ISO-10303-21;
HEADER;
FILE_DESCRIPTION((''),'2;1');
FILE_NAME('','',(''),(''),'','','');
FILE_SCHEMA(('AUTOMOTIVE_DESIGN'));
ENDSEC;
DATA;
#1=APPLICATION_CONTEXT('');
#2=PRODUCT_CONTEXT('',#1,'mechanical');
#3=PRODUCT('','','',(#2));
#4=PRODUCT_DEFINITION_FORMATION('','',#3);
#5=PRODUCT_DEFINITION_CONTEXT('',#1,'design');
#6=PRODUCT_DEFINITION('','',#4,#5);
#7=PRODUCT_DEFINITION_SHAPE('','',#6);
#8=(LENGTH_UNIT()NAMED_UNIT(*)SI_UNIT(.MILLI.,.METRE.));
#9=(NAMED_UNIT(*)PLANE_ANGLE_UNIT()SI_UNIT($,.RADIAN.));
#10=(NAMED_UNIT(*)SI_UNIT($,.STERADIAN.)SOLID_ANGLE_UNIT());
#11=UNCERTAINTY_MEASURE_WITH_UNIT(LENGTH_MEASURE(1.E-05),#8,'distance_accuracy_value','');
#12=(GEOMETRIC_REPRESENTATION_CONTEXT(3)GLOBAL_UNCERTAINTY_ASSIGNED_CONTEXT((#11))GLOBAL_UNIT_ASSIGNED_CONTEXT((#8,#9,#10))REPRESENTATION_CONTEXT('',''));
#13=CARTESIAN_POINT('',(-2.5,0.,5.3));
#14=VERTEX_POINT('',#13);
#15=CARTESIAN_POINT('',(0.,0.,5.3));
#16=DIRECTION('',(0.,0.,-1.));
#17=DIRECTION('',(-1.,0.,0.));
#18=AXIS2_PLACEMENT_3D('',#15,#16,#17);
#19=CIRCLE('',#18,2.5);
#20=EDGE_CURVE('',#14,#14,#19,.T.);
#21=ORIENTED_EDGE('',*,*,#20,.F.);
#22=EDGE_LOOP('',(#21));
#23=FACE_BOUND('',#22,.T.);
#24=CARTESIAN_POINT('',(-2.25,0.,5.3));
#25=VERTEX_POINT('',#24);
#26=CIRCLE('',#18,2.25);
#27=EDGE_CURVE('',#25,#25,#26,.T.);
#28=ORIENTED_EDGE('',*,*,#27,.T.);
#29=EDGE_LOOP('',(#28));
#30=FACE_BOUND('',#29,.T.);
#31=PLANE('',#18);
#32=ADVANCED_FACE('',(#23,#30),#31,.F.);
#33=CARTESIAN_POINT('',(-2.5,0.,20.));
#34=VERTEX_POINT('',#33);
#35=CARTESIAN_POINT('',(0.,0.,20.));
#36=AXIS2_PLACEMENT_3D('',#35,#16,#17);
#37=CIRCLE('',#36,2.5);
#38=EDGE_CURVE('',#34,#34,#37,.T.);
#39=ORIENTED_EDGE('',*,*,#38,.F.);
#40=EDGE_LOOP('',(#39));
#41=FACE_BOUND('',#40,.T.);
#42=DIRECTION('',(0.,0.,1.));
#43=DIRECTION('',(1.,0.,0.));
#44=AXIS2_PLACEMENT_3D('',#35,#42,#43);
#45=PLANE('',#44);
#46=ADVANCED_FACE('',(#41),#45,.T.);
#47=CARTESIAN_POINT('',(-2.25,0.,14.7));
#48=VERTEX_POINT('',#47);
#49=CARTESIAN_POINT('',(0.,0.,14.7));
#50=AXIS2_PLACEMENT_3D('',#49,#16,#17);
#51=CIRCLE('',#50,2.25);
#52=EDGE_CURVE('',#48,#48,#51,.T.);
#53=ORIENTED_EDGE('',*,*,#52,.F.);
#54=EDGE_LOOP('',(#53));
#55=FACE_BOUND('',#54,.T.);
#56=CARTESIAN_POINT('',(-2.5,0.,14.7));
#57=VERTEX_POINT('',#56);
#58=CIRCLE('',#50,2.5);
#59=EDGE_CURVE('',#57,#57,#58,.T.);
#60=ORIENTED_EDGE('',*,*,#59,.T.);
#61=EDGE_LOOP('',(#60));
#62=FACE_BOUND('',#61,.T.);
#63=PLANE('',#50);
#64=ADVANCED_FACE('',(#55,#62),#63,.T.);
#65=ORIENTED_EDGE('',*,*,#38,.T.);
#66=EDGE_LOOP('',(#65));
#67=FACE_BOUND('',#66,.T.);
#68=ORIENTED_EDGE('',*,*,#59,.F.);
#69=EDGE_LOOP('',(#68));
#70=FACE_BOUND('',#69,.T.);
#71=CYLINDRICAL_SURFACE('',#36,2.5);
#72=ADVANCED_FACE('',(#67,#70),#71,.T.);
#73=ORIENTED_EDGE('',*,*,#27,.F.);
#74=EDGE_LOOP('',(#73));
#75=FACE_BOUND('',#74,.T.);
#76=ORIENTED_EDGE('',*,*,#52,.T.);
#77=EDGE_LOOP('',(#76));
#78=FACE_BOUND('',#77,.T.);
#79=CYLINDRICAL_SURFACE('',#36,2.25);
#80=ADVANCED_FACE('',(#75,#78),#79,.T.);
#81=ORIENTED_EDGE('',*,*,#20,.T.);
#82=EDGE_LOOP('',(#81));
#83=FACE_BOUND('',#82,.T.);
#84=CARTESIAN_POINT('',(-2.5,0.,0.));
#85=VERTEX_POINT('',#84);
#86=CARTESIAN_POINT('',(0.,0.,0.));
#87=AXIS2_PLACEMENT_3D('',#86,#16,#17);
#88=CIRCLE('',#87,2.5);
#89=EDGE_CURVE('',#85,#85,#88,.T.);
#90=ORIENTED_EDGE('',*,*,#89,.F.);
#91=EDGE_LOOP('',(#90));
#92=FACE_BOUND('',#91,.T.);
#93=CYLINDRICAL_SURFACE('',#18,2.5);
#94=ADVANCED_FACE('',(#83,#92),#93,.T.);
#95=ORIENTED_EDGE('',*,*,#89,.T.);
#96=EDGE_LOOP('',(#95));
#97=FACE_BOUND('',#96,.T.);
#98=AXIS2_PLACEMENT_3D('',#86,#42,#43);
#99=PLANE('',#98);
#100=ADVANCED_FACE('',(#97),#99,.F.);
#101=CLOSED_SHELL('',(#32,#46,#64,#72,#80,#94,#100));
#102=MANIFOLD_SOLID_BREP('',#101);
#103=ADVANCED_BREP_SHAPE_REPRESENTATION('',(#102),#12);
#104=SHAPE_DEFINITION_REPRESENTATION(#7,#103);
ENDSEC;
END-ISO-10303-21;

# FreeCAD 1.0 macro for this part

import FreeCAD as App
import Part
import Sketcher

V = App.Vector

doc = App.newDocument("Part")
body = doc.addObject("PartDesign::Body", "Body")

# Sketch on XY plane
sketch1 = doc.addObject("Sketcher::SketchObject", "Sketch")
body.addObject(sketch1)
sketch1.AttachmentSupport = (doc.XY_Plane, [""])
sketch1.MapMode = "FlatFace"
sketch1.addGeometry(Part.Circle(V(0, 0, 0), V(0, 0, 1), 2.2), False)
sketch1.addConstraint([
    Sketcher.Constraint("Coincident", 0, 3, -1, 1),
    Sketcher.Constraint("Diameter", 0, 4.5),
])
pad1 = doc.addObject("PartDesign::Pad", "Pad")
body.addObject(pad1)
pad1.Profile = sketch1
pad1.Length = 20

# Sketch on XY plane
sketch2 = doc.addObject("Sketcher::SketchObject", "Sketch001")
body.addObject(sketch2)
sketch2.AttachmentSupport = (doc.XY_Plane, [""])
sketch2.MapMode = "FlatFace"
sketch2.addGeometry(Part.Circle(V(0, 0, 0), V(0, 0, 1), 2.5), False)
sketch2.addConstraint([
    Sketcher.Constraint("Coincident", 0, 3, -1, 1),
    Sketcher.Constraint("Diameter", 0, 5.0),
])
pad2 = doc.addObject("PartDesign::Pad", "Pad001")
body.addObject(pad2)
pad2.Profile = sketch2
pad2.Length = 5.3

# Sketch on XY plane
sketch3 = doc.addObject("Sketcher::SketchObject", "Sketch002")
body.addObject(sketch3)
sketch3.AttachmentSupport = (doc.XY_Plane, [""])
sketch3.MapMode = "FlatFace"
sketch3.AttachmentOffset = App.Placement(V(0, 0, 14.7), App.Rotation())
sketch3.addGeometry(Part.Circle(V(0, 0, 0), V(0, 0, 1), 2.5), False)
sketch3.addConstraint([
    Sketcher.Constraint("Coincident", 0, 3, -1, 1),
    Sketcher.Constraint("Diameter", 0, 5.0),
])
pad3 = doc.addObject("PartDesign::Pad", "Pad002")
body.addObject(pad3)
pad3.Profile = sketch3
pad3.Length = 5.3

doc.recompute()
